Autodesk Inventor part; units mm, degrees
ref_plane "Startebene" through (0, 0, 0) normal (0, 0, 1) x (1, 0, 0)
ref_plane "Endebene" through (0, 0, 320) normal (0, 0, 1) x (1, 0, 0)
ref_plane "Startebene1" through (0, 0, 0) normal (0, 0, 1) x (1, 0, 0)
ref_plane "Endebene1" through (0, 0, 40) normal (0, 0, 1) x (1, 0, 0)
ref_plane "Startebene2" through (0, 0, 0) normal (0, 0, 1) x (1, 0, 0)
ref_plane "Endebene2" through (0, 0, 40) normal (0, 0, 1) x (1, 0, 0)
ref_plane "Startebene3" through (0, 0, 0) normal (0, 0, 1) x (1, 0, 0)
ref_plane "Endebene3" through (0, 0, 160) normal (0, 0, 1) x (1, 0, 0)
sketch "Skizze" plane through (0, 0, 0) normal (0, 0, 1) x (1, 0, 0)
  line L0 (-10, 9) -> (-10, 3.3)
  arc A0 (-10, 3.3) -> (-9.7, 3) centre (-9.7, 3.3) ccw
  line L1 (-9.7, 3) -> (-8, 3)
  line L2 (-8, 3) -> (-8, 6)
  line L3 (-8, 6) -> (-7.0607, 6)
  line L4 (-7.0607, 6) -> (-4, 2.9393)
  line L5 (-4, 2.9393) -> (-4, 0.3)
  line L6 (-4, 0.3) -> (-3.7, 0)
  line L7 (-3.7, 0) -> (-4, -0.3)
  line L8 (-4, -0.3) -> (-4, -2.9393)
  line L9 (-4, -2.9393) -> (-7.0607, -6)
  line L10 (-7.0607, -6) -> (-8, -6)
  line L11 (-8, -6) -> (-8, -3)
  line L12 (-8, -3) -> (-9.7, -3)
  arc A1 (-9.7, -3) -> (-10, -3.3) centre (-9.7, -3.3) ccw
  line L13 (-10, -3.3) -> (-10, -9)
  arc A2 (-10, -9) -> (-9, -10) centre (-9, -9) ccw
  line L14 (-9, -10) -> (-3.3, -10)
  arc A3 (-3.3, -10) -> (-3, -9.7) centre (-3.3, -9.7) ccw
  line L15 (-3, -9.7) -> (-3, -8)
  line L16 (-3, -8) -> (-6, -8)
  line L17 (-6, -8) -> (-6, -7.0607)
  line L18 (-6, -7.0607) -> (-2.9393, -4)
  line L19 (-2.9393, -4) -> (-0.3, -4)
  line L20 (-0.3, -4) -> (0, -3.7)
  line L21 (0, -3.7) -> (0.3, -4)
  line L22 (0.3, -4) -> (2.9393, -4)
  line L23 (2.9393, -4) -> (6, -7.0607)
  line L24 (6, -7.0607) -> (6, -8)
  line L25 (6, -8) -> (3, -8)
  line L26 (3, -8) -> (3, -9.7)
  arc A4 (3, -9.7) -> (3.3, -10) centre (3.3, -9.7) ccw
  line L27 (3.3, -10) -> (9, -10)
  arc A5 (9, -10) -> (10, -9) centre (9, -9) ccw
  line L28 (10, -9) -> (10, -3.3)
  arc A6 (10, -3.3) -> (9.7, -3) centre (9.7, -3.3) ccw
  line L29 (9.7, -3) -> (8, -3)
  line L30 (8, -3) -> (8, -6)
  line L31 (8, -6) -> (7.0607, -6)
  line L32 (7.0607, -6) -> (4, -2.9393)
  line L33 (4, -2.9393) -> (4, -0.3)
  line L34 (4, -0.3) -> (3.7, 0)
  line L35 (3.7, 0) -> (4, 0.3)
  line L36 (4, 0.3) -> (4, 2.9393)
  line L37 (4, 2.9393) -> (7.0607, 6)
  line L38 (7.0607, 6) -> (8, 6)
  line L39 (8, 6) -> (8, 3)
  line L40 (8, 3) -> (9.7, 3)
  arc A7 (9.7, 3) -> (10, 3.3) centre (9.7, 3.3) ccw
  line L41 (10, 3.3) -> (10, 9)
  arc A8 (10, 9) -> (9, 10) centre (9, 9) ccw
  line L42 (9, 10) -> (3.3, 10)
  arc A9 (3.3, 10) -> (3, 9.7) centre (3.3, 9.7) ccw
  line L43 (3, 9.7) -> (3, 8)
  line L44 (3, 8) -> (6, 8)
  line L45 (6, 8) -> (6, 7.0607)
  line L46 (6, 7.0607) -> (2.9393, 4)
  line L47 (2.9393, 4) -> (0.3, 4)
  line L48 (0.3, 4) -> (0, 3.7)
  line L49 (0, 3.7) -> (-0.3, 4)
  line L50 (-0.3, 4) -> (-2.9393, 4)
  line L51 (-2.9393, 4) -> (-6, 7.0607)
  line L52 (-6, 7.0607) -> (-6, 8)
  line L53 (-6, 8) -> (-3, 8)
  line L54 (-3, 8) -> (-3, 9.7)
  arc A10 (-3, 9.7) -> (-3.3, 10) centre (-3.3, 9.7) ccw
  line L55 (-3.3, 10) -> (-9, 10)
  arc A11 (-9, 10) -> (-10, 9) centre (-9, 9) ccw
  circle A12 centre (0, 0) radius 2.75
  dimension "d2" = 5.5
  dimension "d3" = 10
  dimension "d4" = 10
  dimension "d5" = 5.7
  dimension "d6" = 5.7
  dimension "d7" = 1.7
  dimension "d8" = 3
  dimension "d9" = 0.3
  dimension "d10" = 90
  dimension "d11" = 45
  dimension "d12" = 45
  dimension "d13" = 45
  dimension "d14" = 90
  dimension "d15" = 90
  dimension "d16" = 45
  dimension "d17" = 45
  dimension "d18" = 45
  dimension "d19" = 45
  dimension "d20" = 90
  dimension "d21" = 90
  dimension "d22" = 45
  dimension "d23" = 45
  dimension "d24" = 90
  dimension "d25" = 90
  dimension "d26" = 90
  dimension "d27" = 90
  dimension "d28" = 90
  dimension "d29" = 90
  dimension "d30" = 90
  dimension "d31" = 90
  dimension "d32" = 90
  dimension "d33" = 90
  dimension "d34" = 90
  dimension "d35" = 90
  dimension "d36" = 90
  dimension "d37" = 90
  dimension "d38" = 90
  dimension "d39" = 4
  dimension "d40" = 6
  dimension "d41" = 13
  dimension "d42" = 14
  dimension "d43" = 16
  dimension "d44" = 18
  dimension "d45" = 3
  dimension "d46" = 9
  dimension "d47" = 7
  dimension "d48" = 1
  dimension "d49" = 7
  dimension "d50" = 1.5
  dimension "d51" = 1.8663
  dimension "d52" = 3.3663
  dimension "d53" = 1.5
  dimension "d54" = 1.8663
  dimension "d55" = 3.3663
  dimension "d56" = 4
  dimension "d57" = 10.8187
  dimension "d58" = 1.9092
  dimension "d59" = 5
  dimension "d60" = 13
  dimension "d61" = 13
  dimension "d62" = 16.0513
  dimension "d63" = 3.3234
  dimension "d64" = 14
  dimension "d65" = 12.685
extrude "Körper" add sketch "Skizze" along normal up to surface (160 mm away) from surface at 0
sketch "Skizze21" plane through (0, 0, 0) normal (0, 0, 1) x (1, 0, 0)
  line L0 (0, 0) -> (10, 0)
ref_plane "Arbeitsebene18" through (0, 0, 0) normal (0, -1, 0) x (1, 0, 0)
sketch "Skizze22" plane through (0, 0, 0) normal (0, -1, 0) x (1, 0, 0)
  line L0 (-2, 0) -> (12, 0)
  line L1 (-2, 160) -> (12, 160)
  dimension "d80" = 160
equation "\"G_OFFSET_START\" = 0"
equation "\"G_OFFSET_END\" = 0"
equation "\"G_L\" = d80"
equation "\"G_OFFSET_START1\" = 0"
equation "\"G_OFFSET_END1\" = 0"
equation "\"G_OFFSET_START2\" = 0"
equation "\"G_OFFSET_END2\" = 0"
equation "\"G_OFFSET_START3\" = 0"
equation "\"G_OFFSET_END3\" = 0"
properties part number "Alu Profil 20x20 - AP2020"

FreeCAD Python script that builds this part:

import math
import FreeCAD as App
import Part
import Sketcher

V = App.Vector
Q = App.Units.Quantity

doc = App.newDocument("Part")
params = doc.addObject("Spreadsheet::Sheet", "Params")
for row, (alias, value) in enumerate([
    ("sketch1_radius", "1 mm"),
    ("sketch1_diameter", "5.5 mm"),
    ("sketch1_radius2", "0.3 mm"),
    ("sketch1_width", "3 mm"),
    ("sketch1_width2", "1.7 mm"),
    ("pad1_length", "160 mm"),
], start=1):
    params.set(f"A{row}", alias)
    params.set(f"B{row}", "=" + value)
    params.setAlias(f"B{row}", alias)

body = doc.addObject("PartDesign::Body", "Body")

sketch1 = doc.addObject("Sketcher::SketchObject", "Sketch")
body.addObject(sketch1)
sketch1.AttachmentSupport = (doc.XY_Plane, [""])
sketch1.MapMode = "FlatFace"
sketch1.addGeometry(Part.ArcOfCircle(Part.Circle(V(-9, 9, 0), V(0, 0, 1), 1), math.radians(90), math.radians(180)), False)
sketch1.addGeometry(Part.LineSegment(V(-10, 9, 0), V(-10, 3.3, 0)), False)
sketch1.addGeometry(Part.ArcOfCircle(Part.Circle(V(-9.7, 3.3, 0), V(0, 0, 1), 0.3), math.radians(180), math.radians(270)), False)
sketch1.addGeometry(Part.LineSegment(V(-9.7, 3, 0), V(-8, 3, 0)), False)
sketch1.addGeometry(Part.LineSegment(V(-8, 3, 0), V(-8, 6, 0)), False)
sketch1.addGeometry(Part.LineSegment(V(-8, 6, 0), V(-7.06, 6, 0)), False)
sketch1.addGeometry(Part.LineSegment(V(-7.06, 6, 0), V(-4, 2.94, 0)), False)
sketch1.addGeometry(Part.LineSegment(V(-4, 2.94, 0), V(-4, 0.3, 0)), False)
sketch1.addGeometry(Part.LineSegment(V(-4, 0.3, 0), V(-3.7, 0, 0)), False)
sketch1.addGeometry(Part.LineSegment(V(-3.7, 0, 0), V(-4, -0.3, 0)), False)
sketch1.addGeometry(Part.LineSegment(V(-4, -0.3, 0), V(-4, -2.94, 0)), False)
sketch1.addGeometry(Part.LineSegment(V(-4, -2.94, 0), V(-7.06, -6, 0)), False)
sketch1.addGeometry(Part.LineSegment(V(-7.06, -6, 0), V(-8, -6, 0)), False)
sketch1.addGeometry(Part.LineSegment(V(-8, -6, 0), V(-8, -3, 0)), False)
sketch1.addGeometry(Part.LineSegment(V(-8, -3, 0), V(-9.7, -3, 0)), False)
sketch1.addGeometry(Part.ArcOfCircle(Part.Circle(V(-9.7, -3.3, 0), V(0, 0, 1), 0.3), math.radians(90), math.radians(180)), False)
sketch1.addGeometry(Part.LineSegment(V(-10, -3.3, 0), V(-10, -9, 0)), False)
sketch1.addGeometry(Part.ArcOfCircle(Part.Circle(V(-9, -9, 0), V(0, 0, 1), 1), math.radians(180), math.radians(270)), False)
sketch1.addGeometry(Part.LineSegment(V(-9, -10, 0), V(-3.3, -10, 0)), False)
sketch1.addGeometry(Part.ArcOfCircle(Part.Circle(V(-3.3, -9.7, 0), V(0, 0, 1), 0.3), math.radians(-90), math.radians(0)), False)
sketch1.addGeometry(Part.LineSegment(V(-3, -9.7, 0), V(-3, -8, 0)), False)
sketch1.addGeometry(Part.LineSegment(V(-3, -8, 0), V(-6, -8, 0)), False)
sketch1.addGeometry(Part.LineSegment(V(-6, -8, 0), V(-6, -7.06, 0)), False)
sketch1.addGeometry(Part.LineSegment(V(-6, -7.06, 0), V(-2.94, -4, 0)), False)
sketch1.addGeometry(Part.LineSegment(V(-2.94, -4, 0), V(-0.3, -4, 0)), False)
sketch1.addGeometry(Part.LineSegment(V(-0.3, -4, 0), V(0, -3.7, 0)), False)
sketch1.addGeometry(Part.LineSegment(V(0, -3.7, 0), V(0.3, -4, 0)), False)
sketch1.addGeometry(Part.LineSegment(V(0.3, -4, 0), V(2.94, -4, 0)), False)
sketch1.addGeometry(Part.LineSegment(V(2.94, -4, 0), V(6, -7.06, 0)), False)
sketch1.addGeometry(Part.LineSegment(V(6, -7.06, 0), V(6, -8, 0)), False)
sketch1.addGeometry(Part.LineSegment(V(6, -8, 0), V(3, -8, 0)), False)
sketch1.addGeometry(Part.LineSegment(V(3, -8, 0), V(3, -9.7, 0)), False)
sketch1.addGeometry(Part.ArcOfCircle(Part.Circle(V(3.3, -9.7, 0), V(0, 0, 1), 0.3), math.radians(180), math.radians(270)), False)
sketch1.addGeometry(Part.LineSegment(V(3.3, -10, 0), V(9, -10, 0)), False)
sketch1.addGeometry(Part.ArcOfCircle(Part.Circle(V(9, -9, 0), V(0, 0, 1), 1), math.radians(-90), math.radians(0)), False)
sketch1.addGeometry(Part.LineSegment(V(10, -9, 0), V(10, -3.3, 0)), False)
sketch1.addGeometry(Part.ArcOfCircle(Part.Circle(V(9.7, -3.3, 0), V(0, 0, 1), 0.3), math.radians(0), math.radians(90)), False)
sketch1.addGeometry(Part.LineSegment(V(9.7, -3, 0), V(8, -3, 0)), False)
sketch1.addGeometry(Part.LineSegment(V(8, -3, 0), V(8, -6, 0)), False)
sketch1.addGeometry(Part.LineSegment(V(8, -6, 0), V(7.06, -6, 0)), False)
sketch1.addGeometry(Part.LineSegment(V(7.06, -6, 0), V(4, -2.94, 0)), False)
sketch1.addGeometry(Part.LineSegment(V(4, -2.94, 0), V(4, -0.3, 0)), False)
sketch1.addGeometry(Part.LineSegment(V(4, -0.3, 0), V(3.7, 0, 0)), False)
sketch1.addGeometry(Part.LineSegment(V(3.7, 0, 0), V(4, 0.3, 0)), False)
sketch1.addGeometry(Part.LineSegment(V(4, 0.3, 0), V(4, 2.94, 0)), False)
sketch1.addGeometry(Part.LineSegment(V(4, 2.94, 0), V(7.06, 6, 0)), False)
sketch1.addGeometry(Part.LineSegment(V(7.06, 6, 0), V(8, 6, 0)), False)
sketch1.addGeometry(Part.LineSegment(V(8, 6, 0), V(8, 3, 0)), False)
sketch1.addGeometry(Part.LineSegment(V(8, 3, 0), V(9.7, 3, 0)), False)
sketch1.addGeometry(Part.ArcOfCircle(Part.Circle(V(9.7, 3.3, 0), V(0, 0, 1), 0.3), math.radians(-90), math.radians(0)), False)
sketch1.addGeometry(Part.LineSegment(V(10, 3.3, 0), V(10, 9, 0)), False)
sketch1.addGeometry(Part.ArcOfCircle(Part.Circle(V(9, 9, 0), V(0, 0, 1), 1), math.radians(0), math.radians(90)), False)
sketch1.addGeometry(Part.LineSegment(V(9, 10, 0), V(3.3, 10, 0)), False)
sketch1.addGeometry(Part.ArcOfCircle(Part.Circle(V(3.3, 9.7, 0), V(0, 0, 1), 0.3), math.radians(90), math.radians(180)), False)
sketch1.addGeometry(Part.LineSegment(V(3, 9.7, 0), V(3, 8, 0)), False)
sketch1.addGeometry(Part.LineSegment(V(3, 8, 0), V(6, 8, 0)), False)
sketch1.addGeometry(Part.LineSegment(V(6, 8, 0), V(6, 7.06, 0)), False)
sketch1.addGeometry(Part.LineSegment(V(6, 7.06, 0), V(2.94, 4, 0)), False)
sketch1.addGeometry(Part.LineSegment(V(2.94, 4, 0), V(0.3, 4, 0)), False)
sketch1.addGeometry(Part.LineSegment(V(0.3, 4, 0), V(0, 3.7, 0)), False)
sketch1.addGeometry(Part.LineSegment(V(0, 3.7, 0), V(-0.3, 4, 0)), False)
sketch1.addGeometry(Part.LineSegment(V(-0.3, 4, 0), V(-2.94, 4, 0)), False)
sketch1.addGeometry(Part.LineSegment(V(-2.94, 4, 0), V(-6, 7.06, 0)), False)
sketch1.addGeometry(Part.LineSegment(V(-6, 7.06, 0), V(-6, 8, 0)), False)
sketch1.addGeometry(Part.LineSegment(V(-6, 8, 0), V(-3, 8, 0)), False)
sketch1.addGeometry(Part.LineSegment(V(-3, 8, 0), V(-3, 9.7, 0)), False)
sketch1.addGeometry(Part.ArcOfCircle(Part.Circle(V(-3.3, 9.7, 0), V(0, 0, 1), 0.3), math.radians(0), math.radians(90)), False)
sketch1.addGeometry(Part.LineSegment(V(-3.3, 10, 0), V(-9, 10, 0)), False)
sketch1.addGeometry(Part.Circle(V(0, 0, 0), V(0, 0, 1), 2.75), False)
sketch1.addConstraint(Sketcher.Constraint("Tangent", 0, 2, 1, 1))
sketch1.addConstraint(Sketcher.Constraint("Tangent", 1, 2, 2, 1))
sketch1.addConstraint(Sketcher.Constraint("Tangent", 2, 2, 3, 1))
sketch1.addConstraint(Sketcher.Constraint("Coincident", 3, 2, 4, 1))
sketch1.addConstraint(Sketcher.Constraint("Coincident", 4, 2, 5, 1))
sketch1.addConstraint(Sketcher.Constraint("Coincident", 5, 2, 6, 1))
sketch1.addConstraint(Sketcher.Constraint("Coincident", 6, 2, 7, 1))
sketch1.addConstraint(Sketcher.Constraint("Coincident", 7, 2, 8, 1))
sketch1.addConstraint(Sketcher.Constraint("Coincident", 8, 2, 9, 1))
sketch1.addConstraint(Sketcher.Constraint("Coincident", 9, 2, 10, 1))
sketch1.addConstraint(Sketcher.Constraint("Coincident", 10, 2, 11, 1))
sketch1.addConstraint(Sketcher.Constraint("Coincident", 11, 2, 12, 1))
sketch1.addConstraint(Sketcher.Constraint("Coincident", 12, 2, 13, 1))
sketch1.addConstraint(Sketcher.Constraint("Coincident", 13, 2, 14, 1))
sketch1.addConstraint(Sketcher.Constraint("Tangent", 14, 2, 15, 1))
sketch1.addConstraint(Sketcher.Constraint("Tangent", 15, 2, 16, 1))
sketch1.addConstraint(Sketcher.Constraint("Tangent", 16, 2, 17, 1))
sketch1.addConstraint(Sketcher.Constraint("Tangent", 17, 2, 18, 1))
sketch1.addConstraint(Sketcher.Constraint("Tangent", 18, 2, 19, 1))
sketch1.addConstraint(Sketcher.Constraint("Tangent", 19, 2, 20, 1))
sketch1.addConstraint(Sketcher.Constraint("Coincident", 20, 2, 21, 1))
sketch1.addConstraint(Sketcher.Constraint("Coincident", 21, 2, 22, 1))
sketch1.addConstraint(Sketcher.Constraint("Coincident", 22, 2, 23, 1))
sketch1.addConstraint(Sketcher.Constraint("Coincident", 23, 2, 24, 1))
sketch1.addConstraint(Sketcher.Constraint("Coincident", 24, 2, 25, 1))
sketch1.addConstraint(Sketcher.Constraint("Coincident", 25, 2, 26, 1))
sketch1.addConstraint(Sketcher.Constraint("Coincident", 26, 2, 27, 1))
sketch1.addConstraint(Sketcher.Constraint("Coincident", 27, 2, 28, 1))
sketch1.addConstraint(Sketcher.Constraint("Coincident", 28, 2, 29, 1))
sketch1.addConstraint(Sketcher.Constraint("Coincident", 29, 2, 30, 1))
sketch1.addConstraint(Sketcher.Constraint("Coincident", 30, 2, 31, 1))
sketch1.addConstraint(Sketcher.Constraint("Tangent", 31, 2, 32, 1))
sketch1.addConstraint(Sketcher.Constraint("Tangent", 32, 2, 33, 1))
sketch1.addConstraint(Sketcher.Constraint("Tangent", 33, 2, 34, 1))
sketch1.addConstraint(Sketcher.Constraint("Tangent", 34, 2, 35, 1))
sketch1.addConstraint(Sketcher.Constraint("Tangent", 35, 2, 36, 1))
sketch1.addConstraint(Sketcher.Constraint("Tangent", 36, 2, 37, 1))
sketch1.addConstraint(Sketcher.Constraint("Coincident", 37, 2, 38, 1))
sketch1.addConstraint(Sketcher.Constraint("Coincident", 38, 2, 39, 1))
sketch1.addConstraint(Sketcher.Constraint("Coincident", 39, 2, 40, 1))
sketch1.addConstraint(Sketcher.Constraint("Coincident", 40, 2, 41, 1))
sketch1.addConstraint(Sketcher.Constraint("Coincident", 41, 2, 42, 1))
sketch1.addConstraint(Sketcher.Constraint("Coincident", 42, 2, 43, 1))
sketch1.addConstraint(Sketcher.Constraint("Coincident", 43, 2, 44, 1))
sketch1.addConstraint(Sketcher.Constraint("Coincident", 44, 2, 45, 1))
sketch1.addConstraint(Sketcher.Constraint("Coincident", 45, 2, 46, 1))
sketch1.addConstraint(Sketcher.Constraint("Coincident", 46, 2, 47, 1))
sketch1.addConstraint(Sketcher.Constraint("Coincident", 47, 2, 48, 1))
sketch1.addConstraint(Sketcher.Constraint("Tangent", 48, 2, 49, 1))
sketch1.addConstraint(Sketcher.Constraint("Tangent", 49, 2, 50, 1))
sketch1.addConstraint(Sketcher.Constraint("Tangent", 50, 2, 51, 1))
sketch1.addConstraint(Sketcher.Constraint("Tangent", 51, 2, 52, 1))
sketch1.addConstraint(Sketcher.Constraint("Tangent", 52, 2, 53, 1))
sketch1.addConstraint(Sketcher.Constraint("Tangent", 53, 2, 54, 1))
sketch1.addConstraint(Sketcher.Constraint("Coincident", 54, 2, 55, 1))
sketch1.addConstraint(Sketcher.Constraint("Coincident", 55, 2, 56, 1))
sketch1.addConstraint(Sketcher.Constraint("Coincident", 56, 2, 57, 1))
sketch1.addConstraint(Sketcher.Constraint("Coincident", 57, 2, 58, 1))
sketch1.addConstraint(Sketcher.Constraint("Coincident", 58, 2, 59, 1))
sketch1.addConstraint(Sketcher.Constraint("Coincident", 59, 2, 60, 1))
sketch1.addConstraint(Sketcher.Constraint("Coincident", 60, 2, 61, 1))
sketch1.addConstraint(Sketcher.Constraint("Coincident", 61, 2, 62, 1))
sketch1.addConstraint(Sketcher.Constraint("Coincident", 62, 2, 63, 1))
sketch1.addConstraint(Sketcher.Constraint("Coincident", 63, 2, 64, 1))
sketch1.addConstraint(Sketcher.Constraint("Coincident", 64, 2, 65, 1))
sketch1.addConstraint(Sketcher.Constraint("Tangent", 65, 2, 66, 1))
sketch1.addConstraint(Sketcher.Constraint("Tangent", 66, 2, 67, 1))
sketch1.addConstraint(Sketcher.Constraint("Tangent", 67, 2, 0, 1))
sketch1.addConstraint(Sketcher.Constraint("Vertical", 1))
sketch1.addConstraint(Sketcher.Constraint("Horizontal", 3))
sketch1.addConstraint(Sketcher.Constraint("Vertical", 4))
sketch1.addConstraint(Sketcher.Constraint("Horizontal", 5))
sketch1.addConstraint(Sketcher.Constraint("Vertical", 7))
sketch1.addConstraint(Sketcher.Constraint("Vertical", 10))
sketch1.addConstraint(Sketcher.Constraint("Horizontal", 12))
sketch1.addConstraint(Sketcher.Constraint("Vertical", 13))
sketch1.addConstraint(Sketcher.Constraint("Horizontal", 14))
sketch1.addConstraint(Sketcher.Constraint("Vertical", 16))
sketch1.addConstraint(Sketcher.Constraint("Horizontal", 18))
sketch1.addConstraint(Sketcher.Constraint("Vertical", 20))
sketch1.addConstraint(Sketcher.Constraint("Horizontal", 21))
sketch1.addConstraint(Sketcher.Constraint("Vertical", 22))
sketch1.addConstraint(Sketcher.Constraint("Horizontal", 24))
sketch1.addConstraint(Sketcher.Constraint("Horizontal", 27))
sketch1.addConstraint(Sketcher.Constraint("Vertical", 29))
sketch1.addConstraint(Sketcher.Constraint("Horizontal", 30))
sketch1.addConstraint(Sketcher.Constraint("Vertical", 31))
sketch1.addConstraint(Sketcher.Constraint("Horizontal", 33))
sketch1.addConstraint(Sketcher.Constraint("Vertical", 35))
sketch1.addConstraint(Sketcher.Constraint("Horizontal", 37))
sketch1.addConstraint(Sketcher.Constraint("Vertical", 38))
sketch1.addConstraint(Sketcher.Constraint("Horizontal", 39))
sketch1.addConstraint(Sketcher.Constraint("Vertical", 41))
sketch1.addConstraint(Sketcher.Constraint("Vertical", 44))
sketch1.addConstraint(Sketcher.Constraint("Horizontal", 46))
sketch1.addConstraint(Sketcher.Constraint("Vertical", 47))
sketch1.addConstraint(Sketcher.Constraint("Horizontal", 48))
sketch1.addConstraint(Sketcher.Constraint("Vertical", 50))
sketch1.addConstraint(Sketcher.Constraint("Horizontal", 52))
sketch1.addConstraint(Sketcher.Constraint("Vertical", 54))
sketch1.addConstraint(Sketcher.Constraint("Horizontal", 55))
sketch1.addConstraint(Sketcher.Constraint("Vertical", 56))
sketch1.addConstraint(Sketcher.Constraint("Horizontal", 58))
sketch1.addConstraint(Sketcher.Constraint("Horizontal", 61))
sketch1.addConstraint(Sketcher.Constraint("Vertical", 63))
sketch1.addConstraint(Sketcher.Constraint("Horizontal", 64))
sketch1.addConstraint(Sketcher.Constraint("Vertical", 65))
sketch1.addConstraint(Sketcher.Constraint("Horizontal", 67))
sketch1.addConstraint(Sketcher.Constraint("Coincident", 68, 3, -1, 1))
sketch1.addConstraint(Sketcher.Constraint("Equal", 2, 15))
sketch1.addConstraint(Sketcher.Constraint("Equal", 0, 17))
sketch1.addConstraint(Sketcher.Constraint("Equal", 15, 19))
sketch1.addConstraint(Sketcher.Constraint("Equal", 19, 32))
sketch1.addConstraint(Sketcher.Constraint("Equal", 17, 34))
sketch1.addConstraint(Sketcher.Constraint("Equal", 32, 36))
sketch1.addConstraint(Sketcher.Constraint("Equal", 36, 49))
sketch1.addConstraint(Sketcher.Constraint("Equal", 34, 51))
sketch1.addConstraint(Sketcher.Constraint("Equal", 49, 53))
sketch1.addConstraint(Sketcher.Constraint("Equal", 53, 66))
sketch1.addConstraint(Sketcher.Constraint("Symmetric", 0, 3, 34, 3, -1, 1))
sketch1.addConstraint(Sketcher.Constraint("Symmetric", 15, 3, 49, 3, -1, 1))
sketch1.addConstraint(Sketcher.Constraint("Symmetric", 19, 3, 53, 3, -1, 1))
sketch1.addConstraint(Sketcher.Constraint("Symmetric", 3, 2, 37, 2, -1, 1))
sketch1.addConstraint(Sketcher.Constraint("Symmetric", 5, 2, 39, 2, -1, 1))
sketch1.addConstraint(Sketcher.Constraint("Symmetric", 6, 2, 40, 2, -1, 1))
sketch1.addConstraint(Sketcher.Constraint("Symmetric", 8, 2, 42, 2, -1, 1))
sketch1.addConstraint(Sketcher.Constraint("Symmetric", 9, 2, 43, 2, -1, 1))
sketch1.addConstraint(Sketcher.Constraint("Symmetric", 11, 2, 45, 2, -1, 1))
sketch1.addConstraint(Sketcher.Constraint("Symmetric", 21, 2, 55, 2, -1, 1))
sketch1.addConstraint(Sketcher.Constraint("Symmetric", 23, 2, 57, 2, -1, 1))
sketch1.addConstraint(Sketcher.Constraint("Symmetric", 25, 2, 59, 2, -1, 1))
sketch1.addConstraint(Sketcher.Constraint("Symmetric", 26, 2, 60, 2, -1, 1))
sketch1.addConstraint(Sketcher.Constraint("Symmetric", 28, 2, 62, 2, -1, 1))
sketch1.addConstraint(Sketcher.Constraint("Symmetric", 30, 2, 64, 2, -1, 1))
sketch1.addConstraint(Sketcher.Constraint("Symmetric", 19, 3, 32, 3, -2))
sketch1.addConstraint(Sketcher.Constraint("Symmetric", 15, 3, 36, 3, -2))
sketch1.addConstraint(Sketcher.Constraint("Symmetric", 24, 2, 26, 2, -2))
sketch1.addConstraint(Sketcher.Constraint("Symmetric", 22, 2, 28, 2, -2))
sketch1.addConstraint(Sketcher.Constraint("Symmetric", 12, 2, 38, 2, -2))
sketch1.addConstraint(Sketcher.Constraint("Symmetric", 10, 2, 40, 2, -2))
sketch1.addConstraint(Sketcher.Constraint("PointOnObject", 8, 2, -1))
sketch1.addConstraint(Sketcher.Constraint("PointOnObject", 25, 2, -2))
sketch1.addConstraint(Sketcher.Constraint("Parallel", 6, 8))
sketch1.addConstraint(Sketcher.Constraint("Perpendicular", 8, 9))
sketch1.addConstraint(Sketcher.Constraint("Parallel", 9, 11))
sketch1.addConstraint(Sketcher.Constraint("Parallel", 11, 23))
sketch1.addConstraint(Sketcher.Constraint("Parallel", 23, 25))
sketch1.addConstraint(Sketcher.Constraint("Perpendicular", 25, 26))
sketch1.addConstraint(Sketcher.Constraint("Parallel", 26, 28))
sketch1.addConstraint(Sketcher.Constraint("Parallel", 40, 42))
sketch1.addConstraint(Sketcher.Constraint("Parallel", 43, 45))
sketch1.addConstraint(Sketcher.Constraint("Parallel", 45, 57))
sketch1.addConstraint(Sketcher.Constraint("Parallel", 57, 59))
sketch1.addConstraint(Sketcher.Constraint("Parallel", 60, 62))
sketch1.addConstraint(Sketcher.Constraint("Horizontal", 21, 2, 29, 2))
sketch1.addConstraint(Sketcher.Constraint("Vertical", 38, 2, 46, 2))
sketch1.addConstraint(Sketcher.Constraint("Equal", 67, 1))
sketch1.addConstraint(Sketcher.Constraint("Equal", 64, 4))
sketch1.addConstraint(Sketcher.Constraint("Equal", 61, 7))
sketch1.addConstraint(Sketcher.Constraint("Equal", 48, 20))
sketch1.addConstraint(Sketcher.Constraint("Equal", 46, 22))
sketch1.addConstraint(Sketcher.Constraint("Equal", 11, 23))
sketch1.addConstraint(Sketcher.Constraint("Equal", 9, 25))
sketch1.addConstraint(Sketcher.Constraint("Radius", 0, Q("1 mm")))
sketch1.addConstraint(Sketcher.Constraint("Diameter", 68, Q("5.5 mm")))
sketch1.addConstraint(Sketcher.Constraint("Radius", 2, Q("0.3 mm")))
sketch1.addConstraint(Sketcher.Constraint("DistanceX", 21, 2, 21, 1, Q("3 mm")))
sketch1.addConstraint(Sketcher.Constraint("DistanceX", 3, 1, 3, 2, Q("1.7 mm")))
sketch1.addConstraint(Sketcher.Constraint("DistanceX", 18, 1, 18, 2, Q("5.7 mm")))
sketch1.addConstraint(Sketcher.Constraint("DistanceX", 0, 3, -1, 1, Q("9 mm")))
sketch1.addConstraint(Sketcher.Constraint("DistanceX", 6, 2, -1, 1, Q("4 mm")))
sketch1.addConstraint(Sketcher.Constraint("DistanceY", -1, 1, 7, 2, Q("0.3 mm")))
sketch1.addConstraint(Sketcher.Constraint("DistanceX", 5, 1, 5, 2, Q("0.9393 mm")))
sketch1.setExpression("Constraints[163]", "Params.sketch1_radius")
sketch1.setExpression("Constraints[164]", "Params.sketch1_diameter")
sketch1.setExpression("Constraints[165]", "Params.sketch1_radius2")
sketch1.setExpression("Constraints[166]", "Params.sketch1_width")
sketch1.setExpression("Constraints[167]", "Params.sketch1_width2")
pad1 = doc.addObject("PartDesign::Pad", "Pad")
body.addObject(pad1)
pad1.Profile = sketch1
pad1.setExpression("Length", "Params.pad1_length")

doc.recompute()
